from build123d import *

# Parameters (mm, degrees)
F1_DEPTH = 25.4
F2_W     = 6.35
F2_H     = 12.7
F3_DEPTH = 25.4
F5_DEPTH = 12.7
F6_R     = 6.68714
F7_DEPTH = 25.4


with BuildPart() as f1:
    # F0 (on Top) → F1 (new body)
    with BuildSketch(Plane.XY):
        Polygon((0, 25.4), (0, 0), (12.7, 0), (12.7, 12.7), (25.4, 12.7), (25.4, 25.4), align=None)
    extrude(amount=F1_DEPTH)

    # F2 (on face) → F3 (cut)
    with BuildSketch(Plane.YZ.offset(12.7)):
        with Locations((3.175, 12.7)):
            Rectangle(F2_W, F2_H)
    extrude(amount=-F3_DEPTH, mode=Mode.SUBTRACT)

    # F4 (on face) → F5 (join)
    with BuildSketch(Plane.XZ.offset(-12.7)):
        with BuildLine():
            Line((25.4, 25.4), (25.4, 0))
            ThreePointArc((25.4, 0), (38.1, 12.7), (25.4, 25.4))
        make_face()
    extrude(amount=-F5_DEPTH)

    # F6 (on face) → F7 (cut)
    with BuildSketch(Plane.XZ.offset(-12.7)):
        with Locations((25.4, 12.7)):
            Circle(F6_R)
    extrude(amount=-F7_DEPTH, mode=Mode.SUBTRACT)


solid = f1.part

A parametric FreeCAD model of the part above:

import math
import FreeCAD as App
import Part
import Sketcher

V = App.Vector
Q = App.Units.Quantity


def add_polygon(sketch, points):
    """Adds a closed chain of lines whose ends are joined by coincident constraints."""
    first, n = sketch.GeometryCount, len(points)
    for a, b in zip(points, points[1:] + points[:1]):
        sketch.addGeometry(Part.LineSegment(App.Vector(*a, 0), App.Vector(*b, 0)), False)
    for i in range(n):
        sketch.addConstraint(Sketcher.Constraint("Coincident", first + i, 2, first + (i + 1) % n, 1))

doc = App.newDocument("Part")
params = doc.addObject("Spreadsheet::Sheet", "Params")
for row, (alias, value) in enumerate([
    ("sketch1_width", "1 in"),
    ("pad1_length", "1 in"),
    ("sketch2_height", "0.5 in"),
    ("sketch2_width", "0.25 in"),
    ("pocket1_length", "1 in"),
    ("sketch3_radius", "0.5 in"),
    ("pad2_length", "0.5 in"),
    ("pocket2_length", "1 in"),
], start=1):
    params.set(f"A{row}", alias)
    params.set(f"B{row}", "=" + value)
    params.setAlias(f"B{row}", alias)

body = doc.addObject("PartDesign::Body", "Body")

sketch1 = body.newObject("Sketcher::SketchObject", "Sketch")
sketch1.AttachmentSupport = (doc.getObject("XY_Plane"), [""])
sketch1.MapMode = "FlatFace"
add_polygon(sketch1, [(0, 25), (0, 0), (13, 0), (13, 13), (25, 13), (25, 25)])
sketch1.addConstraint([
    Sketcher.Constraint("Vertical", 0),
    Sketcher.Constraint("Horizontal", 1),
    Sketcher.Constraint("Vertical", 2),
    Sketcher.Constraint("Horizontal", 3),
    Sketcher.Constraint("Vertical", 4),
    Sketcher.Constraint("Horizontal", 5),
    Sketcher.Constraint("Coincident", 0, 2, -1, 1),
    Sketcher.Constraint("Equal", 1, 3),
    Sketcher.Constraint("Equal", 5, 0),
    Sketcher.Constraint("Equal", 3, 2),
    Sketcher.Constraint("DistanceX", 5, 2, 5, 1, Q("1 in")),
])
sketch1.setExpression("Constraints[16]", "Params.sketch1_width")
pad1 = body.newObject("PartDesign::Pad", "Pad")
pad1.Profile = sketch1
pad1.setExpression("Length", "Params.pad1_length")

sketch2 = body.newObject("Sketcher::SketchObject", "Sketch001")
sketch2.AttachmentSupport = (doc.getObject("YZ_Plane"), [""])
sketch2.MapMode = "FlatFace"
sketch2.AttachmentOffset = App.Placement(V(0, 0, 0.5 * 25.4), App.Rotation())
add_polygon(sketch2, [(0, 19), (0, 6), (6, 6), (6, 19)])
sketch2.addConstraint([
    Sketcher.Constraint("Vertical", 0),
    Sketcher.Constraint("Horizontal", 1),
    Sketcher.Constraint("Vertical", 2),
    Sketcher.Constraint("Horizontal", 3),
    Sketcher.Constraint("PointOnObject", 0, 2, -2),
    Sketcher.Constraint("DistanceY", 0, 2, 0, 1, Q("0.5 in")),
    Sketcher.Constraint("DistanceX", 1, 1, 1, 2, Q("0.25 in")),
    Sketcher.Constraint("DistanceY", -1, 1, 0, 2, Q("0.25 in")),
])
sketch2.setExpression("Constraints[9]", "Params.sketch2_height")
sketch2.setExpression("Constraints[10]", "Params.sketch2_width")
pocket1 = body.newObject("PartDesign::Pocket", "Pocket")
pocket1.Profile = sketch2
pocket1.setExpression("Length", "Params.pocket1_length")

sketch3 = body.newObject("Sketcher::SketchObject", "Sketch002")
sketch3.AttachmentSupport = (doc.getObject("XZ_Plane"), [""])
sketch3.MapMode = "FlatFace"
sketch3.AttachmentOffset = App.Placement(V(0, 0, -0.5 * 25.4), App.Rotation())
sketch3.addGeometry([
    Part.LineSegment(V(25, 25, 0), V(25, 0, 0)),
    Part.ArcOfCircle(Part.Circle(V(25, 13, 0), V(0, 0, 1), 13), math.radians(-90), math.radians(90)),
], False)
sketch3.addConstraint([
    Sketcher.Constraint("Coincident", 0, 1, 1, 2),
    Sketcher.Constraint("Coincident", 1, 1, 0, 2),
    Sketcher.Constraint("Vertical", 0),
    Sketcher.Constraint("PointOnObject", 1, 1, -1),
    Sketcher.Constraint("Vertical", 1, 3, 0, 1),
    Sketcher.Constraint("Radius", 1, Q("0.5 in")),
    Sketcher.Constraint("DistanceX", -1, 1, 1, 3, Q("1 in")),
])
sketch3.setExpression("Constraints[5]", "Params.sketch3_radius")
pad2 = body.newObject("PartDesign::Pad", "Pad001")
pad2.Profile = sketch3
pad2.setExpression("Length", "Params.pad2_length")
pad2.Reversed = True

sketch4 = body.newObject("Sketcher::SketchObject", "Sketch003")
sketch4.AttachmentSupport = (doc.getObject("XZ_Plane"), [""])
sketch4.MapMode = "FlatFace"
sketch4.AttachmentOffset = App.Placement(V(0, 0, -0.5 * 25.4), App.Rotation())
sketch4.addGeometry(Part.Circle(V(25, 13, 0), V(0, 0, 1), 7), False)
sketch4.addConstraint([
    Sketcher.Constraint("DistanceX", -1, 1, 0, 3, Q("1 in")),
    Sketcher.Constraint("DistanceY", -1, 1, 0, 3, Q("0.5 in")),
    Sketcher.Constraint("Diameter", 0, Q("13.37428 mm")),
])
pocket2 = body.newObject("PartDesign::Pocket", "Pocket001")
pocket2.Profile = sketch4
pocket2.setExpression("Length", "Params.pocket2_length")

doc.recompute()
